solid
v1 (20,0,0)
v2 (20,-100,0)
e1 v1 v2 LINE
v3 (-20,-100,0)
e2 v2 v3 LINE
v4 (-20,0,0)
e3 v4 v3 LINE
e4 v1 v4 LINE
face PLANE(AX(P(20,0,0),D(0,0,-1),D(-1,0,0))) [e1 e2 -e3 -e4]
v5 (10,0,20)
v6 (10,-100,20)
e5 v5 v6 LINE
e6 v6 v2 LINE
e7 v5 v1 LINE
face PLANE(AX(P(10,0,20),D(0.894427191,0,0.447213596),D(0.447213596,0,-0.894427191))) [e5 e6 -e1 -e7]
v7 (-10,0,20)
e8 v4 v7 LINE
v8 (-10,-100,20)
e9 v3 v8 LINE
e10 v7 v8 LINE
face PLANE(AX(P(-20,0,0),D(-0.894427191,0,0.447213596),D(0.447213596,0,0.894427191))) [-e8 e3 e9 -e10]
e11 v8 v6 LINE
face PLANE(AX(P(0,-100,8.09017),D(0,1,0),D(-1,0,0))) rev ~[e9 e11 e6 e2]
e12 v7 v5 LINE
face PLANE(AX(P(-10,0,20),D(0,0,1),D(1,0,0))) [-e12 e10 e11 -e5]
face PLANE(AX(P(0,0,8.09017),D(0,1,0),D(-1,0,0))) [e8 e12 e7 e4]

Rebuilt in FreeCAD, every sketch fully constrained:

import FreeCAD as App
import Part
import Sketcher
from FreeCAD import Vector
Q = App.Units.Quantity


def add_polygon(sketch, points):
    """Adds a closed chain of lines whose ends are joined by coincident constraints."""
    first, n = sketch.GeometryCount, len(points)
    for a, b in zip(points, points[1:] + points[:1]):
        sketch.addGeometry(Part.LineSegment(App.Vector(*a, 0), App.Vector(*b, 0)), False)
    for i in range(n):
        sketch.addConstraint(Sketcher.Constraint("Coincident", first + i, 2, first + (i + 1) % n, 1))

doc = App.newDocument("Part")
body = doc.addObject("PartDesign::Body", "Body")

sketch1 = body.newObject("Sketcher::SketchObject", "Sketch")
sketch1.AttachmentSupport = (doc.getObject("XZ_Plane"), [""])
sketch1.MapMode = "FlatFace"
add_polygon(sketch1, [(-10, 20), (-20, 0), (20, 0), (10, 20)])
sketch1.addConstraint([
    Sketcher.Constraint("Horizontal", 1),
    Sketcher.Constraint("Horizontal", 3),
    Sketcher.Constraint("Symmetric", 0, 2, 1, 2, -1, 1),
    Sketcher.Constraint("Equal", 0, 2),
    Sketcher.Constraint("DistanceX", 1, 1, 1, 2, Q("40 mm")),
    Sketcher.Constraint("DistanceX", 3, 2, 3, 1, Q("20 mm")),
    Sketcher.Constraint("DistanceY", -1, 1, 2, 2, Q("20 mm")),
])
pad1 = body.newObject("PartDesign::Pad", "Pad")
pad1.Profile = sketch1
pad1.Length = 100

doc.recompute()
